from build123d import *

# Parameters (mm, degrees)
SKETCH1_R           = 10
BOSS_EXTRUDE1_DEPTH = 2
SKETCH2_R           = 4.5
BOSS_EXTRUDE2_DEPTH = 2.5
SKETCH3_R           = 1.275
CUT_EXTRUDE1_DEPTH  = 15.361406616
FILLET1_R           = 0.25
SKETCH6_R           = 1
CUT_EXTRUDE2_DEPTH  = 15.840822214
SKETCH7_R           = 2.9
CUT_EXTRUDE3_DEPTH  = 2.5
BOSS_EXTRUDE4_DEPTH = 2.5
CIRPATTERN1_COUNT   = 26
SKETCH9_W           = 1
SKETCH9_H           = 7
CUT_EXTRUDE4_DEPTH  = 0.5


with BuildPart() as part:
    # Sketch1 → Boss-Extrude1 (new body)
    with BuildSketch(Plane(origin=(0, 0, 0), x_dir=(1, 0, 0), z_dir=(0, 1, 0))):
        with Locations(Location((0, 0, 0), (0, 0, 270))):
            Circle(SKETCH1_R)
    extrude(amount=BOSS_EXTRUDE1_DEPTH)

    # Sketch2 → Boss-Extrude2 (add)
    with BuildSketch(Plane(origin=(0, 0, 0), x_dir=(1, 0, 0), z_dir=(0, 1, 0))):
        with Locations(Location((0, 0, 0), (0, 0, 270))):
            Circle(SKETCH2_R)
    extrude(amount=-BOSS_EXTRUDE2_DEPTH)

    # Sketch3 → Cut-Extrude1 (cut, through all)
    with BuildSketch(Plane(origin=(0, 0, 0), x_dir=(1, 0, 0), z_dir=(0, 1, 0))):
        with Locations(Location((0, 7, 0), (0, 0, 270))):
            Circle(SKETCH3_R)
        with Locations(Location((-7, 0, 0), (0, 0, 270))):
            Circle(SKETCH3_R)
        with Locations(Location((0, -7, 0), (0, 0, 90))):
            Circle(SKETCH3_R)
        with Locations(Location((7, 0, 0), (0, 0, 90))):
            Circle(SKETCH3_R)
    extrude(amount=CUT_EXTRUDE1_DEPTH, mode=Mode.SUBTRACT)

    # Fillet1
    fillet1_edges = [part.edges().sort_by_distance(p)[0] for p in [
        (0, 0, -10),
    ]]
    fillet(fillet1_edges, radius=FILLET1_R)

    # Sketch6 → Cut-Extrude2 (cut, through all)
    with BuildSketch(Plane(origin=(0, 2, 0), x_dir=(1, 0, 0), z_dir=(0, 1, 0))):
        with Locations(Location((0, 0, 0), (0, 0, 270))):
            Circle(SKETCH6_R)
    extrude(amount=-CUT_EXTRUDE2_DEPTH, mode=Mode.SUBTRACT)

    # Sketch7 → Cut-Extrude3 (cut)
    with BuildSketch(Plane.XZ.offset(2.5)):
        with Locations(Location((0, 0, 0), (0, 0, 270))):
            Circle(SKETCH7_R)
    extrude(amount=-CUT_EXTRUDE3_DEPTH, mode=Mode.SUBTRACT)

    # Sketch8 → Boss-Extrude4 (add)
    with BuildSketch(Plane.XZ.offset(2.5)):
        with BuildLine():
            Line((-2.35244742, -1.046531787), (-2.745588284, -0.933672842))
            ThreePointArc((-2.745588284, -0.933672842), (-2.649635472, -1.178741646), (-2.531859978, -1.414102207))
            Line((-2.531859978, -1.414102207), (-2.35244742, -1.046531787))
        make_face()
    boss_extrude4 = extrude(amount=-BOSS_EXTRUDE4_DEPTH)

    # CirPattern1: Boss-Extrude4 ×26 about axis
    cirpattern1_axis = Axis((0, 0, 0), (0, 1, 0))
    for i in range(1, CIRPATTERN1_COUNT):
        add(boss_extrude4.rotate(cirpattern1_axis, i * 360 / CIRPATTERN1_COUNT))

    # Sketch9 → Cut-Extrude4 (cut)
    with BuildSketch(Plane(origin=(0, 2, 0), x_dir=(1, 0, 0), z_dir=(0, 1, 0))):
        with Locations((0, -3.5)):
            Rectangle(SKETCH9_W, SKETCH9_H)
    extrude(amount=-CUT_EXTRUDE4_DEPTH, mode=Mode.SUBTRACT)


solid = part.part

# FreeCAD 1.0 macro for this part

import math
import FreeCAD as App
import Part
import Sketcher

V = App.Vector
Q = App.Units.Quantity


def edges_at(feature, points):
    """Names of the edges that pass closest to the given points."""
    edges = feature.Shape.Edges
    near = lambda p: min(range(len(edges)), key=lambda i: edges[i].distToShape(Part.Vertex(*p))[0])
    return sorted({f"Edge{near(p) + 1}" for p in points})


def add_polygon(sketch, points):
    """Adds a closed chain of lines whose ends are joined by coincident constraints."""
    first, n = sketch.GeometryCount, len(points)
    for a, b in zip(points, points[1:] + points[:1]):
        sketch.addGeometry(Part.LineSegment(App.Vector(*a, 0), App.Vector(*b, 0)), False)
    for i in range(n):
        sketch.addConstraint(Sketcher.Constraint("Coincident", first + i, 2, first + (i + 1) % n, 1))

doc = App.newDocument("Part")
body = doc.addObject("PartDesign::Body", "Body")

# Sketch on XZ plane
sketch1 = body.newObject("Sketcher::SketchObject", "Sketch")
sketch1.AttachmentSupport = (doc.getObject("XZ_Plane"), [""])
sketch1.MapMode = "FlatFace"
sketch1.addGeometry(Part.Circle(V(0, 0, 0), V(0, 0, 1), 10), False)
sketch1.addConstraint(Sketcher.Constraint("Coincident", 0, 3, -1, 1))
sketch1.addConstraint(Sketcher.Constraint("Diameter", 0, Q("20 mm")))
pad1 = body.newObject("PartDesign::Pad", "Pad")
pad1.Profile = sketch1
pad1.Length = 2
pad1.Reversed = True

# Sketch on XZ plane
sketch2 = body.newObject("Sketcher::SketchObject", "Sketch001")
sketch2.AttachmentSupport = (doc.getObject("XZ_Plane"), [""])
sketch2.MapMode = "FlatFace"
sketch2.addGeometry(Part.Circle(V(0, 0, 0), V(0, 0, 1), 4.5), False)
sketch2.addConstraint(Sketcher.Constraint("Coincident", 0, 3, -1, 1))
sketch2.addConstraint(Sketcher.Constraint("Diameter", 0, Q("9 mm")))
pad2 = body.newObject("PartDesign::Pad", "Pad001")
pad2.Profile = sketch2
pad2.Length = 2.5

# Sketch on XZ plane
sketch3 = body.newObject("Sketcher::SketchObject", "Sketch002")
sketch3.AttachmentSupport = (doc.getObject("XZ_Plane"), [""])
sketch3.MapMode = "FlatFace"
sketch3.addGeometry(Part.Circle(V(0, -7, 0), V(0, 0, 1), 1.3), False)
sketch3.addGeometry(Part.Circle(V(-7, 0, 0), V(0, 0, 1), 1.3), False)
sketch3.addGeometry(Part.Circle(V(0, 7, 0), V(0, 0, 1), 1.3), False)
sketch3.addGeometry(Part.Circle(V(7, 0, 0), V(0, 0, 1), 1.3), False)
sketch3.addConstraint(Sketcher.Constraint("Equal", 0, 1))
sketch3.addConstraint(Sketcher.Constraint("Equal", 1, 2))
sketch3.addConstraint(Sketcher.Constraint("Equal", 2, 3))
sketch3.addConstraint(Sketcher.Constraint("Symmetric", 0, 3, 2, 3, -1, 1))
sketch3.addConstraint(Sketcher.Constraint("Symmetric", 1, 3, 3, 3, -1, 1))
sketch3.addConstraint(Sketcher.Constraint("PointOnObject", 0, 3, -2))
sketch3.addConstraint(Sketcher.Constraint("PointOnObject", 1, 3, -1))
sketch3.addConstraint(Sketcher.Constraint("Diameter", 0, Q("2.55 mm")))
sketch3.addConstraint(Sketcher.Constraint("DistanceY", 0, 3, -1, 1, Q("7 mm")))
sketch3.addConstraint(Sketcher.Constraint("DistanceX", 1, 3, -1, 1, Q("7 mm")))
pocket1 = body.newObject("PartDesign::Pocket", "Pocket")
pocket1.Profile = sketch3
pocket1.Type = "ThroughAll"
doc.recompute()

fillet = body.newObject("PartDesign::Fillet", "Fillet")
fillet.Base = (pocket1, edges_at(pocket1, [(0, 0, -10)]))
fillet.Radius = 0.25

# Sketch on XZ plane
sketch4 = body.newObject("Sketcher::SketchObject", "Sketch003")
sketch4.AttachmentSupport = (doc.getObject("XZ_Plane"), [""])
sketch4.MapMode = "FlatFace"
sketch4.AttachmentOffset = App.Placement(V(0, 0, -2), App.Rotation())
sketch4.addGeometry(Part.Circle(V(0, 0, 0), V(0, 0, 1), 1), False)
sketch4.addConstraint(Sketcher.Constraint("Coincident", 0, 3, -1, 1))
sketch4.addConstraint(Sketcher.Constraint("Diameter", 0, Q("2 mm")))
pocket2 = body.newObject("PartDesign::Pocket", "Pocket001")
pocket2.Profile = sketch4
pocket2.Type = "ThroughAll"
pocket2.Reversed = True

# Sketch on XZ plane
sketch5 = body.newObject("Sketcher::SketchObject", "Sketch004")
sketch5.AttachmentSupport = (doc.getObject("XZ_Plane"), [""])
sketch5.MapMode = "FlatFace"
sketch5.AttachmentOffset = App.Placement(V(0, 0, 2.5), App.Rotation())
sketch5.addGeometry(Part.Circle(V(0, 0, 0), V(0, 0, 1), 2.9), False)
sketch5.addConstraint(Sketcher.Constraint("Coincident", 0, 3, -1, 1))
sketch5.addConstraint(Sketcher.Constraint("Diameter", 0, Q("5.8 mm")))
pocket3 = body.newObject("PartDesign::Pocket", "Pocket002")
pocket3.Profile = sketch5
pocket3.Length = 2.5

# Sketch on XZ plane
sketch6 = body.newObject("Sketcher::SketchObject", "Sketch005")
sketch6.AttachmentSupport = (doc.getObject("XZ_Plane"), [""])
sketch6.MapMode = "FlatFace"
sketch6.AttachmentOffset = App.Placement(V(0, 0, 2.5), App.Rotation())
sketch6.addGeometry(Part.LineSegment(V(-2.35, -1.05, 0), V(-2.75, -0.93, 0)), False)
sketch6.addGeometry(Part.ArcOfCircle(Part.Circle(V(0, 0, 0), V(0, 0, 1), 2.9), math.radians(-161.22), math.radians(-150.82)), False)
sketch6.addGeometry(Part.LineSegment(V(-2.53, -1.41, 0), V(-2.35, -1.05, 0)), False)
sketch6.addConstraint(Sketcher.Constraint("Coincident", 0, 2, 1, 1))
sketch6.addConstraint(Sketcher.Constraint("Coincident", 1, 2, 2, 1))
sketch6.addConstraint(Sketcher.Constraint("Coincident", 2, 2, 0, 1))
sketch6.addConstraint(Sketcher.Constraint("Coincident", 1, 3, -1, 1))
sketch6.addConstraint(Sketcher.Constraint("Equal", 0, 2))
sketch6.addConstraint(Sketcher.Constraint("Radius", 1, Q("2.9 mm")))
sketch6.addConstraint(Sketcher.Constraint("Distance", 0, Q("0.409019 mm")))
sketch6.addConstraint(Sketcher.Constraint("DistanceX", 0, 2, -1, 1, Q("2.745588 mm")))
sketch6.addConstraint(Sketcher.Constraint("DistanceX", 1, 2, -1, 1, Q("2.53186 mm")))
pad3 = body.newObject("PartDesign::Pad", "Pad002")
pad3.Profile = sketch6
pad3.Length = 2.5
pad3.Reversed = True
doc.recompute()

polarpattern = body.newObject("PartDesign::PolarPattern", "PolarPattern")
polarpattern.Originals = [pad3]
polarpattern.Axis = (doc.getObject("Y_Axis"), [""])
polarpattern.Angle = 360
polarpattern.Occurrences = 26
body.Tip = polarpattern

# Sketch on XZ plane
sketch7 = body.newObject("Sketcher::SketchObject", "Sketch006")
sketch7.AttachmentSupport = (doc.getObject("XZ_Plane"), [""])
sketch7.MapMode = "FlatFace"
sketch7.AttachmentOffset = App.Placement(V(0, 0, -2), App.Rotation())
add_polygon(sketch7, [(-0.5, 0), (-0.5, 7), (0.5, 7), (0.5, 0)])  # lines 0-3
sketch7.addConstraint(Sketcher.Constraint("Vertical", 0))
sketch7.addConstraint(Sketcher.Constraint("Horizontal", 1))
sketch7.addConstraint(Sketcher.Constraint("Vertical", 2))
sketch7.addConstraint(Sketcher.Constraint("Horizontal", 3))
sketch7.addConstraint(Sketcher.Constraint("Symmetric", 2, 2, 3, 2, -1, 1))
sketch7.addConstraint(Sketcher.Constraint("DistanceX", 1, 1, 1, 2, Q("1 mm")))
sketch7.addConstraint(Sketcher.Constraint("DistanceY", 0, 1, 0, 2, Q("7 mm")))
pocket4 = body.newObject("PartDesign::Pocket", "Pocket003")
pocket4.Profile = sketch7
pocket4.Length = 0.5
pocket4.Reversed = True

doc.recompute()
